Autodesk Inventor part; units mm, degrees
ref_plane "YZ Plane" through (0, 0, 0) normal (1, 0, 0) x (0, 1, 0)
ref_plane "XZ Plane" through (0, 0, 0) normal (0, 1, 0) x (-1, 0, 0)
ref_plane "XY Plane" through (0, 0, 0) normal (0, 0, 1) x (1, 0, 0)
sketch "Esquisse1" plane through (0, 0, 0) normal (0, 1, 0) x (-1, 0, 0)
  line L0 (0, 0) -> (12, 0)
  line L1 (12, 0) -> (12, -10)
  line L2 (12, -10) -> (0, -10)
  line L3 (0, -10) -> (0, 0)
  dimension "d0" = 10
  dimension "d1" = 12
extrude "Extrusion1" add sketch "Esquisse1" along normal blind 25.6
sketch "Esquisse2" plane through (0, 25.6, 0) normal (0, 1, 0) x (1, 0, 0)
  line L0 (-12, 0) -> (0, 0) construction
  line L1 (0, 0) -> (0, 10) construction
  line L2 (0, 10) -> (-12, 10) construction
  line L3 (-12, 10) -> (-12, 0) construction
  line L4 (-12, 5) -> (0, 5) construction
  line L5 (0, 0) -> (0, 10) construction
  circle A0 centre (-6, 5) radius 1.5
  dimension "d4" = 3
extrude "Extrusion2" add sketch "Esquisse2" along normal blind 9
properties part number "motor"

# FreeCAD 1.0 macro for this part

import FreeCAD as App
import Part
import Sketcher
Q = App.Units.Quantity


def add_polygon(sketch, points):
    """Adds a closed chain of lines whose ends are joined by coincident constraints."""
    first, n = sketch.GeometryCount, len(points)
    for a, b in zip(points, points[1:] + points[:1]):
        sketch.addGeometry(Part.LineSegment(App.Vector(*a, 0), App.Vector(*b, 0)), False)
    for i in range(n):
        sketch.addConstraint(Sketcher.Constraint("Coincident", first + i, 2, first + (i + 1) % n, 1))

doc = App.newDocument("Part")
body = doc.addObject("PartDesign::Body", "Body")

sketch1 = doc.addObject("Sketcher::SketchObject", "Sketch")
body.addObject(sketch1)
sketch1.AttachmentSupport = (doc.XZ_Plane, [""])
sketch1.MapMode = "FlatFace"
add_polygon(sketch1, [(-12, 0), (0, 0), (0, -10), (-12, -10)])
sketch1.addConstraint([
    Sketcher.Constraint("Horizontal", 0),
    Sketcher.Constraint("Vertical", 1),
    Sketcher.Constraint("Horizontal", 2),
    Sketcher.Constraint("Vertical", 3),
    Sketcher.Constraint("Coincident", 0, 2, -1, 1),
    Sketcher.Constraint("DistanceX", 0, 1, 0, 2, Q("12 mm")),
    Sketcher.Constraint("DistanceY", 1, 2, 1, 1, Q("10 mm")),
])
pad1 = doc.addObject("PartDesign::Pad", "Pad")
body.addObject(pad1)
pad1.Profile = sketch1
pad1.Length = 25.6
pad1.Reversed = True

sketch2 = doc.addObject("Sketcher::SketchObject", "Sketch001")
body.addObject(sketch2)
sketch2.AttachmentSupport = (doc.XZ_Plane, [""])
sketch2.MapMode = "FlatFace"
sketch2.AttachmentOffset = App.Placement(App.Vector(0, 0, -25.6), App.Rotation())
sketch2.addGeometry(Part.Circle(App.Vector(-6, -5, 0), App.Vector(0, 0, 1), 1.5), False)
sketch2.addConstraint([
    Sketcher.Constraint("Diameter", 0, Q("3 mm")),
    Sketcher.Constraint("DistanceX", 0, 3, -1, 1, Q("6 mm")),
    Sketcher.Constraint("DistanceY", 0, 3, -1, 1, Q("5 mm")),
])
pad2 = doc.addObject("PartDesign::Pad", "Pad001")
body.addObject(pad2)
pad2.Profile = sketch2
pad2.Length = 9
pad2.Reversed = True

doc.recompute()
